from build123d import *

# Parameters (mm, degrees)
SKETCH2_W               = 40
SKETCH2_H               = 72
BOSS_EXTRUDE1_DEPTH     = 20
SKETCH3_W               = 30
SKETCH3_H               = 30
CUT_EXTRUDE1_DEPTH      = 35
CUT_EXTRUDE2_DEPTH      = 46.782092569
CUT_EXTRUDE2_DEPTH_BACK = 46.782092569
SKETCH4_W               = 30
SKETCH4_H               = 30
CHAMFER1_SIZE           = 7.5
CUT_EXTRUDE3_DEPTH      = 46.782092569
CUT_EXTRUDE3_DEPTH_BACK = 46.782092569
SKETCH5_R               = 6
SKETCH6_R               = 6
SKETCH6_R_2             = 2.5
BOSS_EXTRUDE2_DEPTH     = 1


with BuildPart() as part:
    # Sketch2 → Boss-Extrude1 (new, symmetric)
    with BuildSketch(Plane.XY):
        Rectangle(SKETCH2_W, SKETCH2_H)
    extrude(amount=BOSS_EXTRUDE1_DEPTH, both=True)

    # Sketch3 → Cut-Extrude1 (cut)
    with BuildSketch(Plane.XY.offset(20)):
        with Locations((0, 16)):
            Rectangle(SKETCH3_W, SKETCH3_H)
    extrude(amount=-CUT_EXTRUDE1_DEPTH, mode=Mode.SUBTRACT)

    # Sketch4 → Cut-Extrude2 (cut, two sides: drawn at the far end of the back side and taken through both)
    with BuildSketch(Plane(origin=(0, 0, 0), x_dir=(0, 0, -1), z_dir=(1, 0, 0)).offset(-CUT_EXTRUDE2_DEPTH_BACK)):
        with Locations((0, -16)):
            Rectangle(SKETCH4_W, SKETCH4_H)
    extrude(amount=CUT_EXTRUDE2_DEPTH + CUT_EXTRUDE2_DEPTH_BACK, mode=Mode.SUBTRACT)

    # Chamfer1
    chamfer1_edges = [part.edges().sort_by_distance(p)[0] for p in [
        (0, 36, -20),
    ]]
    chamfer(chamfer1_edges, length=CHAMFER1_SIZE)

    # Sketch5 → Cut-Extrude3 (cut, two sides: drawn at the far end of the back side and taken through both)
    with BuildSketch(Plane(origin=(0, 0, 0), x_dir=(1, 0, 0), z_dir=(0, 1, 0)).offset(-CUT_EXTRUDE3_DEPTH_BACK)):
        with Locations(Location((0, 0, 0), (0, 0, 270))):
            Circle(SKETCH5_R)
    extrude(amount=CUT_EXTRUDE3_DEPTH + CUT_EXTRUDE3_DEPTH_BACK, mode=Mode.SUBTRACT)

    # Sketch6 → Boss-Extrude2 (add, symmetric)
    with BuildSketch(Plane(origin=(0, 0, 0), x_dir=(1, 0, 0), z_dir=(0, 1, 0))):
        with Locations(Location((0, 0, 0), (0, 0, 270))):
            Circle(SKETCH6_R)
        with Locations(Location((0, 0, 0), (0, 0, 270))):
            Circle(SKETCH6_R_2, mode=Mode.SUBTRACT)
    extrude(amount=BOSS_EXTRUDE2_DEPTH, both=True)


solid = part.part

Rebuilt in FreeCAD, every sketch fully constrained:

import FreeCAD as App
import Part
import Sketcher

V = App.Vector


def edges_at(feature, points):
    """Names of the edges that pass closest to the given points."""
    edges = feature.Shape.Edges
    near = lambda p: min(range(len(edges)), key=lambda i: edges[i].distToShape(Part.Vertex(*p))[0])
    return sorted({f"Edge{near(p) + 1}" for p in points})


def add_polygon(sketch, points):
    """Adds a closed chain of lines whose ends are joined by coincident constraints."""
    first, n = sketch.GeometryCount, len(points)
    for a, b in zip(points, points[1:] + points[:1]):
        sketch.addGeometry(Part.LineSegment(App.Vector(*a, 0), App.Vector(*b, 0)), False)
    for i in range(n):
        sketch.addConstraint(Sketcher.Constraint("Coincident", first + i, 2, first + (i + 1) % n, 1))

doc = App.newDocument("Part")
body = doc.addObject("PartDesign::Body", "Body")

sketch1 = body.newObject("Sketcher::SketchObject", "Sketch")
sketch1.AttachmentSupport = (doc.getObject("XY_Plane"), [""])
sketch1.MapMode = "FlatFace"
add_polygon(sketch1, [(-20, 36), (-20, -36), (20, -36), (20, 36)])
sketch1.addConstraint(Sketcher.Constraint("Vertical", 0))
sketch1.addConstraint(Sketcher.Constraint("Horizontal", 1))
sketch1.addConstraint(Sketcher.Constraint("Vertical", 2))
sketch1.addConstraint(Sketcher.Constraint("Horizontal", 3))
sketch1.addConstraint(Sketcher.Constraint("Symmetric", 0, 2, 2, 2, -1, 1))
sketch1.addConstraint(Sketcher.Constraint("DistanceX", 1, 1, 1, 2, 40.0))
sketch1.addConstraint(Sketcher.Constraint("DistanceY", 0, 2, 0, 1, 72.0))
pad1 = body.newObject("PartDesign::Pad", "Pad")
pad1.Profile = sketch1
pad1.Length = 40
pad1.Midplane = True

sketch2 = body.newObject("Sketcher::SketchObject", "Sketch001")
sketch2.AttachmentSupport = (doc.getObject("XY_Plane"), [""])
sketch2.MapMode = "FlatFace"
sketch2.AttachmentOffset = App.Placement(V(0, 0, 20), App.Rotation())
add_polygon(sketch2, [(-15, 31), (-15, 1), (15, 1), (15, 31)])
sketch2.addConstraint(Sketcher.Constraint("Vertical", 0))
sketch2.addConstraint(Sketcher.Constraint("Horizontal", 1))
sketch2.addConstraint(Sketcher.Constraint("Vertical", 2))
sketch2.addConstraint(Sketcher.Constraint("Horizontal", 3))
sketch2.addConstraint(Sketcher.Constraint("Equal", 3, 0))
sketch2.addConstraint(Sketcher.Constraint("DistanceX", 1, 1, 1, 2, 30.0))
sketch2.addConstraint(Sketcher.Constraint("DistanceX", 0, 2, -1, 1, 15.0))
sketch2.addConstraint(Sketcher.Constraint("DistanceY", -1, 1, 0, 2, 1.0))
pocket1 = body.newObject("PartDesign::Pocket", "Pocket")
pocket1.Profile = sketch2
pocket1.Length = 35

sketch3 = body.newObject("Sketcher::SketchObject", "Sketch002")
sketch3.AttachmentSupport = (doc.getObject("YZ_Plane"), [""])
sketch3.MapMode = "FlatFace"
add_polygon(sketch3, [(-1, 15), (-31, 15), (-31, -15), (-1, -15)])
sketch3.addConstraint(Sketcher.Constraint("Horizontal", 0))
sketch3.addConstraint(Sketcher.Constraint("Vertical", 1))
sketch3.addConstraint(Sketcher.Constraint("Horizontal", 2))
sketch3.addConstraint(Sketcher.Constraint("Vertical", 3))
sketch3.addConstraint(Sketcher.Constraint("Equal", 2, 1))
sketch3.addConstraint(Sketcher.Constraint("DistanceX", 0, 2, 0, 1, 30.0))
sketch3.addConstraint(Sketcher.Constraint("DistanceX", 0, 2, -1, 1, 31.0))
sketch3.addConstraint(Sketcher.Constraint("DistanceY", -1, 1, 0, 2, 15.0))
pocket2 = body.newObject("PartDesign::Pocket", "Pocket001")
pocket2.Profile = sketch3
pocket2.Type = "ThroughAll"
pocket2.Midplane = True
doc.recompute()

chamfer = body.newObject("PartDesign::Chamfer", "Chamfer")
chamfer.Base = (pocket2, edges_at(pocket2, [(0, 36, -20)]))
chamfer.Size = 7.5

sketch4 = body.newObject("Sketcher::SketchObject", "Sketch003")
sketch4.AttachmentSupport = (doc.getObject("XZ_Plane"), [""])
sketch4.MapMode = "FlatFace"
sketch4.addGeometry(Part.Circle(V(0, 0, 0), V(0, 0, 1), 6), False)
sketch4.addConstraint(Sketcher.Constraint("Coincident", 0, 3, -1, 1))
sketch4.addConstraint(Sketcher.Constraint("Diameter", 0, 12.0))
pocket3 = body.newObject("PartDesign::Pocket", "Pocket002")
pocket3.Profile = sketch4
pocket3.Type = "ThroughAll"
pocket3.Midplane = True

sketch5 = body.newObject("Sketcher::SketchObject", "Sketch004")
sketch5.AttachmentSupport = (doc.getObject("XZ_Plane"), [""])
sketch5.MapMode = "FlatFace"
sketch5.addGeometry(Part.Circle(V(0, 0, 0), V(0, 0, 1), 6), False)
sketch5.addGeometry(Part.Circle(V(0, 0, 0), V(0, 0, 1), 2.5), False)
sketch5.addConstraint(Sketcher.Constraint("Coincident", 0, 3, -1, 1))
sketch5.addConstraint(Sketcher.Constraint("Coincident", 1, 3, -1, 1))
sketch5.addConstraint(Sketcher.Constraint("Diameter", 0, 12.0))
sketch5.addConstraint(Sketcher.Constraint("Diameter", 1, 5.0))
pad2 = body.newObject("PartDesign::Pad", "Pad001")
pad2.Profile = sketch5
pad2.Length = 2
pad2.Midplane = True

doc.recompute()
